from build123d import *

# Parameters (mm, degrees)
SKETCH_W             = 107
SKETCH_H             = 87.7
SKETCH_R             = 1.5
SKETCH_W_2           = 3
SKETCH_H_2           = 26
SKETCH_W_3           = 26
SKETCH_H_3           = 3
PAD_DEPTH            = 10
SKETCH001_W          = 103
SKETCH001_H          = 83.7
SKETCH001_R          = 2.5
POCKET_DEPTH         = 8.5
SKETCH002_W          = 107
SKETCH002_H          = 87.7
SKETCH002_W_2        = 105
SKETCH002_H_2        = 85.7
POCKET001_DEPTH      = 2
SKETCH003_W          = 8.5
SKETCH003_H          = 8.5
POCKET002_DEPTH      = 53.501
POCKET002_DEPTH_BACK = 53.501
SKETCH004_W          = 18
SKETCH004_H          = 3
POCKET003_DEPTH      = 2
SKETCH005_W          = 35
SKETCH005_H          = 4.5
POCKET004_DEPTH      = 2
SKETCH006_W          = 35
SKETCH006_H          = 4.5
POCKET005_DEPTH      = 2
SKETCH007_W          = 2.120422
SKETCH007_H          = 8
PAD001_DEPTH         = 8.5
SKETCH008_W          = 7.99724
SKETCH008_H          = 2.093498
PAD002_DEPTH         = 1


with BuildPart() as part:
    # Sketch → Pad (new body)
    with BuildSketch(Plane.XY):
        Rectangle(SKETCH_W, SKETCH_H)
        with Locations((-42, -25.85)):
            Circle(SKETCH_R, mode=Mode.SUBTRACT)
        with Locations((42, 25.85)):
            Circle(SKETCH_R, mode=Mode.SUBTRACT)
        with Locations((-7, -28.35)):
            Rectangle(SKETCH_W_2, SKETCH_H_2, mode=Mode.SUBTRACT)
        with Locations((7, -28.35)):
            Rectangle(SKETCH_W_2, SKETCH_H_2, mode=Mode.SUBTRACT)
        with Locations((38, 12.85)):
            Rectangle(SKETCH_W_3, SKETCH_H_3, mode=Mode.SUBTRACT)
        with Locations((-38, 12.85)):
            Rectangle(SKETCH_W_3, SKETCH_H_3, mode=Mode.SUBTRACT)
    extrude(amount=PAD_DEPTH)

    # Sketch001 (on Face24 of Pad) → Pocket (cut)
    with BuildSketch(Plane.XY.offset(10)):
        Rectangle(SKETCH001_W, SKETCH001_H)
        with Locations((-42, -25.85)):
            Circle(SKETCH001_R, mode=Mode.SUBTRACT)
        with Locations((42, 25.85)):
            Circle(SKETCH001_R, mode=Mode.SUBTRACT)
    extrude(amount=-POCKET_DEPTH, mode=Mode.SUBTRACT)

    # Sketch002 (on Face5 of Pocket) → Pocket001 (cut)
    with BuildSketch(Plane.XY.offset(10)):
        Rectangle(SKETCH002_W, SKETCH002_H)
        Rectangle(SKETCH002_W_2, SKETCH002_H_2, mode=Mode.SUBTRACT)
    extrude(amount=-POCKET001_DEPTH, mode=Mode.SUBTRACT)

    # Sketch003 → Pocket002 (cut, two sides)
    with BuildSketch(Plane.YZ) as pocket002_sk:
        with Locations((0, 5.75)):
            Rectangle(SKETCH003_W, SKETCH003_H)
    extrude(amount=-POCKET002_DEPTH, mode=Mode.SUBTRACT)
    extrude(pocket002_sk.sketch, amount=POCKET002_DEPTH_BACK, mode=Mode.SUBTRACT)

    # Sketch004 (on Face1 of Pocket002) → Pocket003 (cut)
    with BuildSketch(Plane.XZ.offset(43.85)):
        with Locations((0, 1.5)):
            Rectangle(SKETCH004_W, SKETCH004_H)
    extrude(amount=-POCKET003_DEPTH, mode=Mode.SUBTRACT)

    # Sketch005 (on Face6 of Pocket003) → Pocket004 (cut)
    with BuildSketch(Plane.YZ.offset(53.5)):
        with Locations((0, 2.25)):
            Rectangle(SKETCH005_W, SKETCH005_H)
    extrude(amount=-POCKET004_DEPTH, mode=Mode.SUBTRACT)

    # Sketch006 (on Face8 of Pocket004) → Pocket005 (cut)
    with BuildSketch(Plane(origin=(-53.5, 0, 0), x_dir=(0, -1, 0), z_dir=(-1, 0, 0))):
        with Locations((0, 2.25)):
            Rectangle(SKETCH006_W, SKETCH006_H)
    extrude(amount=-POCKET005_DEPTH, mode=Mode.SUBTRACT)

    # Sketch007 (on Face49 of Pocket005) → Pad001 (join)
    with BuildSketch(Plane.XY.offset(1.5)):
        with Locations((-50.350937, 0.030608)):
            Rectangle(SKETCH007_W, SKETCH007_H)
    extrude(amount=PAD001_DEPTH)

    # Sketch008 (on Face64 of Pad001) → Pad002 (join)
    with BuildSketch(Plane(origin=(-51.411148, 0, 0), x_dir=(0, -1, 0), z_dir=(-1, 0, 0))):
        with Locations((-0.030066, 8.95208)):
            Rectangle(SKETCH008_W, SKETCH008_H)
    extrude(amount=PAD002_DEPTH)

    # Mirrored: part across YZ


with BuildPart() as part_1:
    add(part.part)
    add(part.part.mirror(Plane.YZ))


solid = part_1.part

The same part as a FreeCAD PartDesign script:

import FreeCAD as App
import Part
import Sketcher
Q = App.Units.Quantity

doc = App.newDocument("Part")
body = doc.addObject("PartDesign::Body", "Body")

# Sketch on XY plane
sketch1 = body.newObject("Sketcher::SketchObject", "Sketch")
sketch1.AttachmentSupport = (doc.getObject("XY_Plane"), [""])
sketch1.MapMode = "FlatFace"
sketch1.addGeometry([
    Part.LineSegment(App.Vector(-53.5, 43.9, 0), App.Vector(-53.5, -43.9, 0)),  # 0
    Part.LineSegment(App.Vector(-53.5, -43.9, 0), App.Vector(53.5, -43.9, 0)),  # 1
    Part.LineSegment(App.Vector(53.5, -43.9, 0), App.Vector(53.5, 43.9, 0)),  # 2
    Part.LineSegment(App.Vector(53.5, 43.9, 0), App.Vector(-53.5, 43.9, 0)),  # 3
    Part.Circle(App.Vector(-42, -25.9, 0), App.Vector(0, 0, 1), 1.5),  # 4
    Part.LineSegment(App.Vector(-5.5, -41.4, 0), App.Vector(-8.5, -41.4, 0)),  # 5
    Part.LineSegment(App.Vector(-8.5, -41.4, 0), App.Vector(-8.5, -15.3, 0)),  # 6
    Part.LineSegment(App.Vector(-8.5, -15.3, 0), App.Vector(-5.5, -15.3, 0)),  # 7
    Part.LineSegment(App.Vector(-5.5, -15.3, 0), App.Vector(-5.5, -41.4, 0)),  # 8
    Part.LineSegment(App.Vector(8.5, -41.4, 0), App.Vector(5.5, -41.4, 0)),  # 9
    Part.LineSegment(App.Vector(5.5, -41.4, 0), App.Vector(5.5, -15.3, 0)),  # 10
    Part.LineSegment(App.Vector(5.5, -15.3, 0), App.Vector(8.5, -15.3, 0)),  # 11
    Part.LineSegment(App.Vector(8.5, -15.3, 0), App.Vector(8.5, -41.4, 0)),  # 12
    Part.LineSegment(App.Vector(-25, 11.3, 0), App.Vector(-51, 11.3, 0)),  # 13
    Part.LineSegment(App.Vector(-51, 11.3, 0), App.Vector(-51, 14.3, 0)),  # 14
    Part.LineSegment(App.Vector(-51, 14.3, 0), App.Vector(-25, 14.3, 0)),  # 15
    Part.LineSegment(App.Vector(-25, 14.3, 0), App.Vector(-25, 11.3, 0)),  # 16
    Part.LineSegment(App.Vector(51, 11.3, 0), App.Vector(25, 11.3, 0)),  # 17
    Part.LineSegment(App.Vector(25, 11.3, 0), App.Vector(25, 14.3, 0)),  # 18
    Part.LineSegment(App.Vector(25, 14.3, 0), App.Vector(51, 14.3, 0)),  # 19
    Part.LineSegment(App.Vector(51, 14.3, 0), App.Vector(51, 11.3, 0)),  # 20
    Part.Circle(App.Vector(42, 25.9, 0), App.Vector(0, 0, 1), 1.5),  # 21
], False)
sketch1.addConstraint([
    Sketcher.Constraint("Coincident", 0, 2, 1, 1),
    Sketcher.Constraint("Coincident", 1, 2, 2, 1),
    Sketcher.Constraint("Coincident", 2, 2, 3, 1),
    Sketcher.Constraint("Coincident", 3, 2, 0, 1),
    Sketcher.Constraint("Coincident", 5, 2, 6, 1),
    Sketcher.Constraint("Coincident", 6, 2, 7, 1),
    Sketcher.Constraint("Coincident", 7, 2, 8, 1),
    Sketcher.Constraint("Coincident", 8, 2, 5, 1),
    Sketcher.Constraint("Coincident", 9, 2, 10, 1),
    Sketcher.Constraint("Coincident", 10, 2, 11, 1),
    Sketcher.Constraint("Coincident", 11, 2, 12, 1),
    Sketcher.Constraint("Coincident", 12, 2, 9, 1),
    Sketcher.Constraint("Coincident", 13, 2, 14, 1),
    Sketcher.Constraint("Coincident", 14, 2, 15, 1),
    Sketcher.Constraint("Coincident", 15, 2, 16, 1),
    Sketcher.Constraint("Coincident", 16, 2, 13, 1),
    Sketcher.Constraint("Coincident", 17, 2, 18, 1),
    Sketcher.Constraint("Coincident", 18, 2, 19, 1),
    Sketcher.Constraint("Coincident", 19, 2, 20, 1),
    Sketcher.Constraint("Coincident", 20, 2, 17, 1),
    Sketcher.Constraint("Vertical", 0),
    Sketcher.Constraint("Horizontal", 1),
    Sketcher.Constraint("Vertical", 2),
    Sketcher.Constraint("Horizontal", 3),
    Sketcher.Constraint("Horizontal", 5),
    Sketcher.Constraint("Vertical", 6),
    Sketcher.Constraint("Horizontal", 7),
    Sketcher.Constraint("Vertical", 8),
    Sketcher.Constraint("Horizontal", 9),
    Sketcher.Constraint("Vertical", 10),
    Sketcher.Constraint("Horizontal", 11),
    Sketcher.Constraint("Vertical", 12),
    Sketcher.Constraint("Horizontal", 13),
    Sketcher.Constraint("Vertical", 14),
    Sketcher.Constraint("Horizontal", 15),
    Sketcher.Constraint("Vertical", 16),
    Sketcher.Constraint("Horizontal", 17),
    Sketcher.Constraint("Vertical", 18),
    Sketcher.Constraint("Horizontal", 19),
    Sketcher.Constraint("Vertical", 20),
    Sketcher.Constraint("Equal", 4, 21),
    Sketcher.Constraint("Symmetric", 4, 3, 21, 3, -1, 1),
    Sketcher.Constraint("Symmetric", 0, 2, 2, 2, -1, 1),
    Sketcher.Constraint("Symmetric", 8, 2, 9, 2, -2),
    Sketcher.Constraint("Symmetric", 6, 2, 11, 2, -2),
    Sketcher.Constraint("Symmetric", 16, 2, 17, 2, -2),
    Sketcher.Constraint("Symmetric", 14, 2, 19, 2, -2),
    Sketcher.Constraint("Equal", 19, 6),
    Sketcher.Constraint("Equal", 11, 14),
    Sketcher.Constraint("Diameter", 4, Q("3 mm")),
    Sketcher.Constraint("DistanceX", 1, 1, 1, 2, Q("107 mm")),
    Sketcher.Constraint("DistanceX", 5, 2, 5, 1, Q("3 mm")),
    Sketcher.Constraint("DistanceX", 13, 2, 13, 1, Q("26 mm")),
    Sketcher.Constraint("DistanceY", 0, 2, 0, 1, Q("87.7 mm")),
    Sketcher.Constraint("DistanceX", 4, 3, -1, 1, Q("42 mm")),
    Sketcher.Constraint("DistanceX", 13, 2, -1, 1, Q("51 mm")),
    Sketcher.Constraint("DistanceY", 0, 2, 4, 3, Q("18 mm")),
    Sketcher.Constraint("DistanceX", 0, 2, 5, 2, Q("45 mm")),
    Sketcher.Constraint("DistanceY", 5, 2, 4, 3, Q("15.5 mm")),
    Sketcher.Constraint("DistanceY", 13, 2, 3, 2, Q("32.5 mm")),
])
pad1 = body.newObject("PartDesign::Pad", "Pad")
pad1.Profile = sketch1
pad1.Length = 10

# Sketch on XY plane
sketch2 = body.newObject("Sketcher::SketchObject", "Sketch001")
sketch2.AttachmentSupport = (doc.getObject("XY_Plane"), [""])
sketch2.MapMode = "FlatFace"
sketch2.AttachmentOffset = App.Placement(App.Vector(0, 0, 10), App.Rotation())
sketch2.addGeometry([
    Part.LineSegment(App.Vector(-51.5, 41.9, 0), App.Vector(-51.5, -41.9, 0)),  # 0
    Part.LineSegment(App.Vector(-51.5, -41.9, 0), App.Vector(51.5, -41.9, 0)),  # 1
    Part.LineSegment(App.Vector(51.5, -41.9, 0), App.Vector(51.5, 41.9, 0)),  # 2
    Part.LineSegment(App.Vector(51.5, 41.9, 0), App.Vector(-51.5, 41.9, 0)),  # 3
    Part.Circle(App.Vector(-42, -25.9, 0), App.Vector(0, 0, 1), 2.5),  # 4
    Part.Circle(App.Vector(42, 25.9, 0), App.Vector(0, 0, 1), 2.5),  # 5
], False)
sketch2.addConstraint([
    Sketcher.Constraint("Coincident", 0, 2, 1, 1),
    Sketcher.Constraint("Coincident", 1, 2, 2, 1),
    Sketcher.Constraint("Coincident", 2, 2, 3, 1),
    Sketcher.Constraint("Coincident", 3, 2, 0, 1),
    Sketcher.Constraint("Vertical", 0),
    Sketcher.Constraint("Horizontal", 1),
    Sketcher.Constraint("Vertical", 2),
    Sketcher.Constraint("Horizontal", 3),
    Sketcher.Constraint("Equal", 4, 5),
    Sketcher.Constraint("Symmetric", 4, 3, 5, 3, -1, 1),
    Sketcher.Constraint("Symmetric", 0, 2, 2, 2, -1, 1),
    Sketcher.Constraint("Diameter", 4, Q("5 mm")),
    Sketcher.Constraint("DistanceX", 1, 1, 1, 2, Q("103 mm")),
    Sketcher.Constraint("DistanceY", 0, 2, 0, 1, Q("83.7 mm")),
    Sketcher.Constraint("DistanceX", 4, 3, -1, 1, Q("42 mm")),
    Sketcher.Constraint("DistanceY", 0, 2, 4, 3, Q("16 mm")),
])
pocket1 = body.newObject("PartDesign::Pocket", "Pocket")
pocket1.Profile = sketch2
pocket1.Length = 8.5

# Sketch on XY plane
sketch3 = body.newObject("Sketcher::SketchObject", "Sketch002")
sketch3.AttachmentSupport = (doc.getObject("XY_Plane"), [""])
sketch3.MapMode = "FlatFace"
sketch3.AttachmentOffset = App.Placement(App.Vector(0, 0, 10), App.Rotation())
sketch3.addGeometry([
    Part.LineSegment(App.Vector(-54, 44, 0), App.Vector(-54, -44, 0)),  # 0
    Part.LineSegment(App.Vector(-54, -44, 0), App.Vector(54, -44, 0)),  # 1
    Part.LineSegment(App.Vector(54, -44, 0), App.Vector(54, 44, 0)),  # 2
    Part.LineSegment(App.Vector(54, 44, 0), App.Vector(-54, 44, 0)),  # 3
    Part.LineSegment(App.Vector(52, -43, 0), App.Vector(-52, -43, 0)),  # 4
    Part.LineSegment(App.Vector(-52, -43, 0), App.Vector(-52, 43, 0)),  # 5
    Part.LineSegment(App.Vector(-52, 43, 0), App.Vector(52, 43, 0)),  # 6
    Part.LineSegment(App.Vector(52, 43, 0), App.Vector(52, -43, 0)),  # 7
], False)
sketch3.addConstraint([
    Sketcher.Constraint("Coincident", 0, 2, 1, 1),
    Sketcher.Constraint("Coincident", 1, 2, 2, 1),
    Sketcher.Constraint("Coincident", 2, 2, 3, 1),
    Sketcher.Constraint("Coincident", 3, 2, 0, 1),
    Sketcher.Constraint("Coincident", 4, 2, 5, 1),
    Sketcher.Constraint("Coincident", 5, 2, 6, 1),
    Sketcher.Constraint("Coincident", 6, 2, 7, 1),
    Sketcher.Constraint("Coincident", 7, 2, 4, 1),
    Sketcher.Constraint("Vertical", 0),
    Sketcher.Constraint("Horizontal", 1),
    Sketcher.Constraint("Vertical", 2),
    Sketcher.Constraint("Horizontal", 3),
    Sketcher.Constraint("Horizontal", 4),
    Sketcher.Constraint("Vertical", 5),
    Sketcher.Constraint("Horizontal", 6),
    Sketcher.Constraint("Vertical", 7),
    Sketcher.Constraint("Symmetric", 0, 2, 2, 2, -1, 1),
    Sketcher.Constraint("Symmetric", 4, 2, 6, 2, -1, 1),
    Sketcher.Constraint("DistanceX", 1, 1, 1, 2, Q("107 mm")),
    Sketcher.Constraint("DistanceX", 4, 2, 4, 1, Q("105 mm")),
    Sketcher.Constraint("DistanceY", 0, 2, 0, 1, Q("87.7 mm")),
    Sketcher.Constraint("DistanceY", 5, 1, 5, 2, Q("85.7 mm")),
])
pocket2 = body.newObject("PartDesign::Pocket", "Pocket001")
pocket2.Profile = sketch3
pocket2.Length = 2

# Sketch on YZ plane
sketch4 = body.newObject("Sketcher::SketchObject", "Sketch003")
sketch4.AttachmentSupport = (doc.getObject("YZ_Plane"), [""])
sketch4.MapMode = "FlatFace"
sketch4.addGeometry([
    Part.LineSegment(App.Vector(-4, 10, 0), App.Vector(-4, 2, 0)),
    Part.LineSegment(App.Vector(-4, 2, 0), App.Vector(4, 2, 0)),
    Part.LineSegment(App.Vector(4, 2, 0), App.Vector(4, 10, 0)),
    Part.LineSegment(App.Vector(4, 10, 0), App.Vector(-4, 10, 0)),
], False)
sketch4.addConstraint([
    Sketcher.Constraint("Coincident", 0, 2, 1, 1),
    Sketcher.Constraint("Coincident", 1, 2, 2, 1),
    Sketcher.Constraint("Coincident", 2, 2, 3, 1),
    Sketcher.Constraint("Coincident", 3, 2, 0, 1),
    Sketcher.Constraint("Vertical", 0),
    Sketcher.Constraint("Horizontal", 1),
    Sketcher.Constraint("Vertical", 2),
    Sketcher.Constraint("Horizontal", 3),
    Sketcher.Constraint("Equal", 3, 0),
    Sketcher.Constraint("DistanceX", 1, 1, 1, 2, Q("8.5 mm")),
    Sketcher.Constraint("DistanceY", -1, 1, 2, 2, Q("10 mm")),
    Sketcher.Constraint("DistanceX", 0, 2, -1, 1, Q("4.25 mm")),
])
pocket3 = body.newObject("PartDesign::Pocket", "Pocket002")
pocket3.Profile = sketch4
pocket3.Type = "ThroughAll"
pocket3.Midplane = True

# Sketch on XZ plane
sketch5 = body.newObject("Sketcher::SketchObject", "Sketch004")
sketch5.AttachmentSupport = (doc.getObject("XZ_Plane"), [""])
sketch5.MapMode = "FlatFace"
sketch5.AttachmentOffset = App.Placement(App.Vector(0, 0, 43.85), App.Rotation())
sketch5.addGeometry([
    Part.LineSegment(App.Vector(-9, 3, 0), App.Vector(-9, 0, 0)),
    Part.LineSegment(App.Vector(-9, 0, 0), App.Vector(9, 0, 0)),
    Part.LineSegment(App.Vector(9, 0, 0), App.Vector(9, 3, 0)),
    Part.LineSegment(App.Vector(9, 3, 0), App.Vector(-9, 3, 0)),
], False)
sketch5.addConstraint([
    Sketcher.Constraint("Coincident", 0, 2, 1, 1),
    Sketcher.Constraint("Coincident", 1, 2, 2, 1),
    Sketcher.Constraint("Coincident", 2, 2, 3, 1),
    Sketcher.Constraint("Coincident", 3, 2, 0, 1),
    Sketcher.Constraint("Vertical", 0),
    Sketcher.Constraint("Horizontal", 1),
    Sketcher.Constraint("Vertical", 2),
    Sketcher.Constraint("Horizontal", 3),
    Sketcher.Constraint("Symmetric", 0, 2, 1, 2, -1, 1),
    Sketcher.Constraint("DistanceX", 1, 1, 1, 2, Q("18 mm")),
    Sketcher.Constraint("DistanceY", 0, 2, 0, 1, Q("3 mm")),
])
pocket4 = body.newObject("PartDesign::Pocket", "Pocket003")
pocket4.Profile = sketch5
pocket4.Length = 2

# Sketch on YZ plane
sketch6 = body.newObject("Sketcher::SketchObject", "Sketch005")
sketch6.AttachmentSupport = (doc.getObject("YZ_Plane"), [""])
sketch6.MapMode = "FlatFace"
sketch6.AttachmentOffset = App.Placement(App.Vector(0, 0, 53.5), App.Rotation())
sketch6.addGeometry([
    Part.LineSegment(App.Vector(-17.5, 4.5, 0), App.Vector(-17.5, 0, 0)),
    Part.LineSegment(App.Vector(-17.5, 0, 0), App.Vector(17.5, 0, 0)),
    Part.LineSegment(App.Vector(17.5, 0, 0), App.Vector(17.5, 4.5, 0)),
    Part.LineSegment(App.Vector(17.5, 4.5, 0), App.Vector(-17.5, 4.5, 0)),
], False)
sketch6.addConstraint([
    Sketcher.Constraint("Coincident", 0, 2, 1, 1),
    Sketcher.Constraint("Coincident", 1, 2, 2, 1),
    Sketcher.Constraint("Coincident", 2, 2, 3, 1),
    Sketcher.Constraint("Coincident", 3, 2, 0, 1),
    Sketcher.Constraint("Vertical", 0),
    Sketcher.Constraint("Horizontal", 1),
    Sketcher.Constraint("Vertical", 2),
    Sketcher.Constraint("Horizontal", 3),
    Sketcher.Constraint("Symmetric", 0, 2, 1, 2, -1, 1),
    Sketcher.Constraint("DistanceX", 1, 1, 1, 2, Q("35 mm")),
    Sketcher.Constraint("DistanceY", 0, 2, 0, 1, Q("4.5 mm")),
])
pocket5 = body.newObject("PartDesign::Pocket", "Pocket004")
pocket5.Profile = sketch6
pocket5.Length = 2

# Sketch on YZ plane
sketch7 = body.newObject("Sketcher::SketchObject", "Sketch006")
sketch7.AttachmentSupport = (doc.getObject("YZ_Plane"), [""])
sketch7.MapMode = "FlatFace"
sketch7.AttachmentOffset = App.Placement(App.Vector(0, 0, -53.5), App.Rotation())
sketch7.addGeometry([
    Part.LineSegment(App.Vector(17.5, 4.5, 0), App.Vector(17.5, 0, 0)),
    Part.LineSegment(App.Vector(17.5, 0, 0), App.Vector(-17.5, 0, 0)),
    Part.LineSegment(App.Vector(-17.5, 0, 0), App.Vector(-17.5, 4.5, 0)),
    Part.LineSegment(App.Vector(-17.5, 4.5, 0), App.Vector(17.5, 4.5, 0)),
], False)
sketch7.addConstraint([
    Sketcher.Constraint("Coincident", 0, 2, 1, 1),
    Sketcher.Constraint("Coincident", 1, 2, 2, 1),
    Sketcher.Constraint("Coincident", 2, 2, 3, 1),
    Sketcher.Constraint("Coincident", 3, 2, 0, 1),
    Sketcher.Constraint("Vertical", 0),
    Sketcher.Constraint("Horizontal", 1),
    Sketcher.Constraint("Vertical", 2),
    Sketcher.Constraint("Horizontal", 3),
    Sketcher.Constraint("Symmetric", 0, 2, 1, 2, -1, 1),
    Sketcher.Constraint("DistanceX", 1, 2, 1, 1, Q("35 mm")),
    Sketcher.Constraint("DistanceY", 0, 2, 0, 1, Q("4.5 mm")),
])
pocket6 = body.newObject("PartDesign::Pocket", "Pocket005")
pocket6.Profile = sketch7
pocket6.Length = 2
pocket6.Reversed = True

# Sketch on XY plane
sketch8 = body.newObject("Sketcher::SketchObject", "Sketch007")
sketch8.AttachmentSupport = (doc.getObject("XY_Plane"), [""])
sketch8.MapMode = "FlatFace"
sketch8.AttachmentOffset = App.Placement(App.Vector(0, 0, 1.5), App.Rotation())
sketch8.addGeometry([
    Part.LineSegment(App.Vector(-51.4, 4, 0), App.Vector(-51.4, -4, 0)),
    Part.LineSegment(App.Vector(-51.4, -4, 0), App.Vector(-49.3, -4, 0)),
    Part.LineSegment(App.Vector(-49.3, -4, 0), App.Vector(-49.3, 4, 0)),
    Part.LineSegment(App.Vector(-49.3, 4, 0), App.Vector(-51.4, 4, 0)),
], False)
sketch8.addConstraint([
    Sketcher.Constraint("Coincident", 0, 2, 1, 1),
    Sketcher.Constraint("Coincident", 1, 2, 2, 1),
    Sketcher.Constraint("Coincident", 2, 2, 3, 1),
    Sketcher.Constraint("Coincident", 3, 2, 0, 1),
    Sketcher.Constraint("Vertical", 0),
    Sketcher.Constraint("Horizontal", 1),
    Sketcher.Constraint("Vertical", 2),
    Sketcher.Constraint("Horizontal", 3),
    Sketcher.Constraint("DistanceY", 0, 2, 0, 1, Q("8 mm")),
    Sketcher.Constraint("DistanceX", 1, 1, 1, 2, Q("2.120422 mm")),
    Sketcher.Constraint("DistanceY", 0, 2, -1, 1, Q("3.969392 mm")),
    Sketcher.Constraint("DistanceX", 0, 2, -1, 1, Q("51.411148 mm")),
])
pad2 = body.newObject("PartDesign::Pad", "Pad001")
pad2.Profile = sketch8
pad2.Length = 8.5

# Sketch on YZ plane
sketch9 = body.newObject("Sketcher::SketchObject", "Sketch008")
sketch9.AttachmentSupport = (doc.getObject("YZ_Plane"), [""])
sketch9.MapMode = "FlatFace"
sketch9.AttachmentOffset = App.Placement(App.Vector(0, 0, -51.411148), App.Rotation())
sketch9.addGeometry([
    Part.LineSegment(App.Vector(4, 10, 0), App.Vector(4, 7.9, 0)),
    Part.LineSegment(App.Vector(4, 7.9, 0), App.Vector(-4, 7.9, 0)),
    Part.LineSegment(App.Vector(-4, 7.9, 0), App.Vector(-4, 10, 0)),
    Part.LineSegment(App.Vector(-4, 10, 0), App.Vector(4, 10, 0)),
], False)
sketch9.addConstraint([
    Sketcher.Constraint("Coincident", 0, 2, 1, 1),
    Sketcher.Constraint("Coincident", 1, 2, 2, 1),
    Sketcher.Constraint("Coincident", 2, 2, 3, 1),
    Sketcher.Constraint("Coincident", 3, 2, 0, 1),
    Sketcher.Constraint("Vertical", 0),
    Sketcher.Constraint("Horizontal", 1),
    Sketcher.Constraint("Vertical", 2),
    Sketcher.Constraint("Horizontal", 3),
    Sketcher.Constraint("DistanceY", 0, 2, 0, 1, Q("2.093498 mm")),
    Sketcher.Constraint("DistanceX", 1, 2, 1, 1, Q("7.99724 mm")),
    Sketcher.Constraint("DistanceY", -1, 1, 0, 2, Q("7.905331 mm")),
    Sketcher.Constraint("DistanceX", -1, 1, 0, 2, Q("4.028686 mm")),
])
pad3 = body.newObject("PartDesign::Pad", "Pad002")
pad3.Profile = sketch9
pad3.Length = 1
pad3.Reversed = True
body2 = doc.addObject("PartDesign::Body", "Body001")
doc.recompute()

body2.BaseFeature = body
doc.recompute()

mirroring = doc.addObject("Part::Mirroring", "Mirroring")
mirroring.Source = body
mirroring.Base = App.Vector(0, 0, 0)
mirroring.Normal = App.Vector(1, 0, 0)
body3 = doc.addObject("PartDesign::Body", "Body002")
body3.BaseFeature = mirroring
boolean = body2.newObject("PartDesign::Boolean", "Boolean")
boolean.Type = "Fuse"
boolean.addObjects([body3])
doc.recompute()
mirroring.Visibility = False

doc.recompute()
